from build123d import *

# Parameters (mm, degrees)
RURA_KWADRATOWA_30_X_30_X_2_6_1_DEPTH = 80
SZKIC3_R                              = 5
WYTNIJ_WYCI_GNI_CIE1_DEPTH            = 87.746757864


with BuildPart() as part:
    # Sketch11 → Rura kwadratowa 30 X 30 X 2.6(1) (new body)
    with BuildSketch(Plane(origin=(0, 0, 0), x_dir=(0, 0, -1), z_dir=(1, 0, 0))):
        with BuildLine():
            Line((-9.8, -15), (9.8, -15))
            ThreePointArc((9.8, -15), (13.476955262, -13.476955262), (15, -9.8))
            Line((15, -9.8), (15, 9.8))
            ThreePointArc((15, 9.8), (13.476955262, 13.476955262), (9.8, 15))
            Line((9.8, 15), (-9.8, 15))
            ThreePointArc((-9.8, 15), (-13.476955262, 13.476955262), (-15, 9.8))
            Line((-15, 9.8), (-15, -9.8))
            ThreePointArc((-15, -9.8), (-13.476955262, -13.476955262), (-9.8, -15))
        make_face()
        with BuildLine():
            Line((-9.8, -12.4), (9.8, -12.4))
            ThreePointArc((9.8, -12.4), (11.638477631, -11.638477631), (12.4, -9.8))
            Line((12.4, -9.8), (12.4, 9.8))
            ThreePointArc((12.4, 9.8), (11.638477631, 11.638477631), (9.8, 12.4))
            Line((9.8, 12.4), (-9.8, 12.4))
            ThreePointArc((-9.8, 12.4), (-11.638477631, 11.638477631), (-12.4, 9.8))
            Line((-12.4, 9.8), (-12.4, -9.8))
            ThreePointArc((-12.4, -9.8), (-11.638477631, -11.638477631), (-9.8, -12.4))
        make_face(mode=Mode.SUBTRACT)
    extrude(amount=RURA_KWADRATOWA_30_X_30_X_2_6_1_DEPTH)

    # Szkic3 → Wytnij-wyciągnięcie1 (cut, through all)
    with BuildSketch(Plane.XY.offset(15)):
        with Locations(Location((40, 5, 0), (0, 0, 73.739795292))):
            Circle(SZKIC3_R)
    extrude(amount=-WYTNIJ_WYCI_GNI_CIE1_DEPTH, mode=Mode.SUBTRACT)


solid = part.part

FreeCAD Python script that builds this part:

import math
import FreeCAD as App
import Part
import Sketcher
from FreeCAD import Vector
Q = App.Units.Quantity

doc = App.newDocument("Part")
body = doc.addObject("PartDesign::Body", "Body")

sketch1 = body.newObject("Sketcher::SketchObject", "Sketch")
sketch1.AttachmentSupport = (doc.getObject("YZ_Plane"), [""])
sketch1.MapMode = "FlatFace"
sketch1.addGeometry([
    Part.LineSegment(Vector(-15, 9.8, 0), Vector(-15, -9.8, 0)),
    Part.ArcOfCircle(Part.Circle(Vector(-9.8, -9.8, 0), Vector(0, 0, 1), 5.2), math.radians(-180), math.radians(-90)),
    Part.LineSegment(Vector(-9.8, -15, 0), Vector(9.8, -15, 0)),
    Part.ArcOfCircle(Part.Circle(Vector(9.8, -9.8, 0), Vector(0, 0, 1), 5.2), math.radians(-90), math.radians(0)),
    Part.LineSegment(Vector(15, -9.8, 0), Vector(15, 9.8, 0)),
    Part.ArcOfCircle(Part.Circle(Vector(9.8, 9.8, 0), Vector(0, 0, 1), 5.2), math.radians(0), math.radians(90)),
    Part.LineSegment(Vector(9.8, 15, 0), Vector(-9.8, 15, 0)),
    Part.ArcOfCircle(Part.Circle(Vector(-9.8, 9.8, 0), Vector(0, 0, 1), 5.2), math.radians(90), math.radians(180)),
    Part.LineSegment(Vector(-12.4, -9.8, 0), Vector(-12.4, 9.8, 0)),
    Part.ArcOfCircle(Part.Circle(Vector(-9.8, 9.8, 0), Vector(0, 0, 1), 2.6), math.radians(90), math.radians(180)),
    Part.LineSegment(Vector(-9.8, 12.4, 0), Vector(9.8, 12.4, 0)),
    Part.ArcOfCircle(Part.Circle(Vector(9.8, 9.8, 0), Vector(0, 0, 1), 2.6), math.radians(0), math.radians(90)),
    Part.LineSegment(Vector(12.4, 9.8, 0), Vector(12.4, -9.8, 0)),
    Part.ArcOfCircle(Part.Circle(Vector(9.8, -9.8, 0), Vector(0, 0, 1), 2.6), math.radians(-90), math.radians(0)),
    Part.LineSegment(Vector(9.8, -12.4, 0), Vector(-9.8, -12.4, 0)),
    Part.ArcOfCircle(Part.Circle(Vector(-9.8, -9.8, 0), Vector(0, 0, 1), 2.6), math.radians(180), math.radians(270)),
], False)
sketch1.addConstraint([
    Sketcher.Constraint("Tangent", 0, 2, 1, 1),
    Sketcher.Constraint("Tangent", 1, 2, 2, 1),
    Sketcher.Constraint("Tangent", 2, 2, 3, 1),
    Sketcher.Constraint("Tangent", 3, 2, 4, 1),
    Sketcher.Constraint("Tangent", 4, 2, 5, 1),
    Sketcher.Constraint("Tangent", 5, 2, 6, 1),
    Sketcher.Constraint("Tangent", 6, 2, 7, 1),
    Sketcher.Constraint("Tangent", 7, 2, 0, 1),
    Sketcher.Constraint("Tangent", 8, 2, 9, 2),
    Sketcher.Constraint("Tangent", 9, 1, 10, 1),
    Sketcher.Constraint("Tangent", 10, 2, 11, 2),
    Sketcher.Constraint("Tangent", 11, 1, 12, 1),
    Sketcher.Constraint("Tangent", 12, 2, 13, 2),
    Sketcher.Constraint("Tangent", 13, 1, 14, 1),
    Sketcher.Constraint("Tangent", 14, 2, 15, 2),
    Sketcher.Constraint("Tangent", 15, 1, 8, 1),
    Sketcher.Constraint("Vertical", 0),
    Sketcher.Constraint("Horizontal", 2),
    Sketcher.Constraint("Vertical", 4),
    Sketcher.Constraint("Horizontal", 6),
    Sketcher.Constraint("Vertical", 8),
    Sketcher.Constraint("Horizontal", 10),
    Sketcher.Constraint("Vertical", 12),
    Sketcher.Constraint("Horizontal", 14),
    Sketcher.Constraint("Coincident", 9, 3, 7, 3),
    Sketcher.Constraint("Coincident", 11, 3, 5, 3),
    Sketcher.Constraint("Coincident", 13, 3, 3, 3),
    Sketcher.Constraint("Equal", 1, 3),
    Sketcher.Constraint("Equal", 3, 5),
    Sketcher.Constraint("Equal", 5, 7),
    Sketcher.Constraint("Equal", 13, 15),
    Sketcher.Constraint("Symmetric", 1, 3, 5, 3, -1, 1),
    Sketcher.Constraint("Equal", 14, 0),
    Sketcher.Constraint("Radius", 1, Q("5.2 mm")),
    Sketcher.Constraint("Radius", 9, Q("2.6 mm")),
    Sketcher.Constraint("DistanceX", 2, 1, 2, 2, Q("19.6 mm")),
])
pad1 = body.newObject("PartDesign::Pad", "Pad")
pad1.Profile = sketch1
pad1.Length = 80

sketch2 = body.newObject("Sketcher::SketchObject", "Sketch001")
sketch2.AttachmentSupport = (doc.getObject("XY_Plane"), [""])
sketch2.MapMode = "FlatFace"
sketch2.AttachmentOffset = App.Placement(Vector(0, 0, 15), App.Rotation())
sketch2.addGeometry(Part.Circle(Vector(40, 5, 0), Vector(0, 0, 1), 5), False)
sketch2.addConstraint([
    Sketcher.Constraint("Diameter", 0, Q("10 mm")),
    Sketcher.Constraint("DistanceX", -1, 1, 0, 3, Q("40 mm")),
    Sketcher.Constraint("DistanceY", -1, 1, 0, 3, Q("5 mm")),
])
pocket1 = body.newObject("PartDesign::Pocket", "Pocket")
pocket1.Profile = sketch2
pocket1.Type = "ThroughAll"

doc.recompute()
